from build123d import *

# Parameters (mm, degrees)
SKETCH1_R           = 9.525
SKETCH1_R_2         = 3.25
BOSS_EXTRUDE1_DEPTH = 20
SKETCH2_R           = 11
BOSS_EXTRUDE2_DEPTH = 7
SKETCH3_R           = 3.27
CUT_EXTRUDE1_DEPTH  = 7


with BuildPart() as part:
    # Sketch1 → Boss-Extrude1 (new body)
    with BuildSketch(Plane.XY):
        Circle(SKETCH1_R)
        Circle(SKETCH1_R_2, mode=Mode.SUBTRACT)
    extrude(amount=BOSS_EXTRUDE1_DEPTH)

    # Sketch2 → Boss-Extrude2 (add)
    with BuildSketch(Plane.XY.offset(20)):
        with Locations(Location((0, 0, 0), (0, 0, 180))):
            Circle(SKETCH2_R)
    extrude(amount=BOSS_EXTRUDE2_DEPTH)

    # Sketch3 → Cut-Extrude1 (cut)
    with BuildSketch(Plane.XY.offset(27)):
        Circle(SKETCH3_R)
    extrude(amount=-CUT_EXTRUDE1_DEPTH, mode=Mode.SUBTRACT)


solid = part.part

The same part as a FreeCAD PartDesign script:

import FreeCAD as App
import Part
import Sketcher
Q = App.Units.Quantity

doc = App.newDocument("Part")
params = doc.addObject("Spreadsheet::Sheet", "Params")
for row, (alias, value) in enumerate([
    ("sketch1_diameter", "6.5 mm"),
    ("sketch1_diameter2", "19.05 mm"),
    ("pad1_length", "20 mm"),
    ("sketch2_diameter", "22 mm"),
    ("pad2_length", "7 mm"),
    ("sketch3_diameter", "6.54 mm"),
    ("pocket1_length", "7 mm"),
], start=1):
    params.set(f"A{row}", alias)
    params.set(f"B{row}", "=" + value)
    params.setAlias(f"B{row}", alias)

body = doc.addObject("PartDesign::Body", "Body")

# Sketch on XY plane
sketch1 = body.newObject("Sketcher::SketchObject", "Sketch")
sketch1.AttachmentSupport = (doc.getObject("XY_Plane"), [""])
sketch1.MapMode = "FlatFace"
sketch1.addGeometry(Part.Circle(App.Vector(0, 0, 0), App.Vector(0, 0, 1), 9.5), False)
sketch1.addGeometry(Part.Circle(App.Vector(0, 0, 0), App.Vector(0, 0, 1), 3.2), False)
sketch1.addConstraint(Sketcher.Constraint("Coincident", 0, 3, -1, 1))
sketch1.addConstraint(Sketcher.Constraint("Coincident", 1, 3, -1, 1))
sketch1.addConstraint(Sketcher.Constraint("Diameter", 1, Q("6.5 mm")))
sketch1.addConstraint(Sketcher.Constraint("Diameter", 0, Q("19.05 mm")))
sketch1.setExpression("Constraints[2]", "Params.sketch1_diameter")
sketch1.setExpression("Constraints[3]", "Params.sketch1_diameter2")
pad1 = body.newObject("PartDesign::Pad", "Pad")
pad1.Profile = sketch1
pad1.setExpression("Length", "Params.pad1_length")

# Sketch on XY plane
sketch2 = body.newObject("Sketcher::SketchObject", "Sketch001")
sketch2.AttachmentSupport = (doc.getObject("XY_Plane"), [""])
sketch2.MapMode = "FlatFace"
sketch2.AttachmentOffset = App.Placement(App.Vector(0, 0, 20), App.Rotation())
sketch2.addGeometry(Part.Circle(App.Vector(0, 0, 0), App.Vector(0, 0, 1), 11), False)
sketch2.addConstraint(Sketcher.Constraint("Coincident", 0, 3, -1, 1))
sketch2.addConstraint(Sketcher.Constraint("Diameter", 0, Q("22 mm")))
sketch2.setExpression("Constraints[1]", "Params.sketch2_diameter")
pad2 = body.newObject("PartDesign::Pad", "Pad001")
pad2.Profile = sketch2
pad2.setExpression("Length", "Params.pad2_length")

# Sketch on XY plane
sketch3 = body.newObject("Sketcher::SketchObject", "Sketch002")
sketch3.AttachmentSupport = (doc.getObject("XY_Plane"), [""])
sketch3.MapMode = "FlatFace"
sketch3.AttachmentOffset = App.Placement(App.Vector(0, 0, 27), App.Rotation())
sketch3.addGeometry(Part.Circle(App.Vector(0, 0, 0), App.Vector(0, 0, 1), 3.3), False)
sketch3.addConstraint(Sketcher.Constraint("Coincident", 0, 3, -1, 1))
sketch3.addConstraint(Sketcher.Constraint("Diameter", 0, Q("6.54 mm")))
sketch3.setExpression("Constraints[1]", "Params.sketch3_diameter")
pocket1 = body.newObject("PartDesign::Pocket", "Pocket")
pocket1.Profile = sketch3
pocket1.setExpression("Length", "Params.pocket1_length")

doc.recompute()
